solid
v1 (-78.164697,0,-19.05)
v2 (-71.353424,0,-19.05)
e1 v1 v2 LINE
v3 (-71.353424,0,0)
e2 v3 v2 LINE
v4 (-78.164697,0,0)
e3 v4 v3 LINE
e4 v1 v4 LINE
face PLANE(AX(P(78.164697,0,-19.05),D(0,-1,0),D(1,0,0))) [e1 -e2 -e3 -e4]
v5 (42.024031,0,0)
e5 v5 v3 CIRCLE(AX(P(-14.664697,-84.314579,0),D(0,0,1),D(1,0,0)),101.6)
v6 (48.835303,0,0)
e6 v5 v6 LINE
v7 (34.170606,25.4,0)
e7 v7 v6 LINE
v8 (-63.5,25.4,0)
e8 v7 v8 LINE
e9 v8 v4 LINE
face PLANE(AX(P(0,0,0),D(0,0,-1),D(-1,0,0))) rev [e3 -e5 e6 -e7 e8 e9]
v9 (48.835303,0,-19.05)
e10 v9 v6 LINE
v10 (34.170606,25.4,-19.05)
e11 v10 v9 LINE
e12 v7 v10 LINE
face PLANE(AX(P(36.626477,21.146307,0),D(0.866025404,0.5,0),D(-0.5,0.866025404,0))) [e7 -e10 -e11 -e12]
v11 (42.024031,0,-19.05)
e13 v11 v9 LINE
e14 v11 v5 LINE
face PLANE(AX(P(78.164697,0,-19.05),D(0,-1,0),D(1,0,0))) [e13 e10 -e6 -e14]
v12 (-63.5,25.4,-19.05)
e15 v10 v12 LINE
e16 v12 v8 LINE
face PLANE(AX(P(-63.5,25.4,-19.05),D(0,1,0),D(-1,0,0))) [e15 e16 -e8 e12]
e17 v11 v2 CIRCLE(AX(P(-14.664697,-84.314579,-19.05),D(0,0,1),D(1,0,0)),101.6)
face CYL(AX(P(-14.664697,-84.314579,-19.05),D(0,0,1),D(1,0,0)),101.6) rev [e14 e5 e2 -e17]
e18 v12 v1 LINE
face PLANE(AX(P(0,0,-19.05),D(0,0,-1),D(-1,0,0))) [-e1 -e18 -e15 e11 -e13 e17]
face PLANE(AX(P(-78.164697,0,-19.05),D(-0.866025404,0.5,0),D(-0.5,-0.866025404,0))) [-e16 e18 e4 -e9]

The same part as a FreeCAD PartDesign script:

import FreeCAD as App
import Part
import Sketcher
Q = App.Units.Quantity


def add_polygon(sketch, points):
    """Adds a closed chain of lines whose ends are joined by coincident constraints."""
    first, n = sketch.GeometryCount, len(points)
    for a, b in zip(points, points[1:] + points[:1]):
        sketch.addGeometry(Part.LineSegment(App.Vector(*a, 0), App.Vector(*b, 0)), False)
    for i in range(n):
        sketch.addConstraint(Sketcher.Constraint("Coincident", first + i, 2, first + (i + 1) % n, 1))

doc = App.newDocument("Part")
body = doc.addObject("PartDesign::Body", "Body")

# Sketch on XY plane
sketch1 = body.newObject("Sketcher::SketchObject", "Sketch")
sketch1.AttachmentSupport = (doc.getObject("XY_Plane"), [""])
sketch1.MapMode = "FlatFace"
add_polygon(sketch1, [(-64, 25), (-78, 0), (78, 0), (64, 25)])  # lines 0-3
sketch1.addConstraint([
    Sketcher.Constraint("Horizontal", 1),
    Sketcher.Constraint("Horizontal", 3),
    Sketcher.Constraint("Symmetric", 0, 2, 1, 2, -1, 1),
    Sketcher.Constraint("Equal", 0, 2),
    Sketcher.Constraint("DistanceX", 3, 2, 3, 1, Q("5 in")),
    Sketcher.Constraint("DistanceY", -1, 1, 2, 2, Q("1 in")),
    Sketcher.Constraint("Angle", 0, Q("-120 deg")),
])
pad1 = body.newObject("PartDesign::Pad", "Pad")
pad1.Profile = sketch1
pad1.Length = Q("0.75 in")
pad1.Reversed = True

# Sketch on an angled plane
sketch2 = body.newObject("Sketcher::SketchObject", "Sketch001")
sketch2.Placement = App.Placement(App.Vector(58.623523, 33.846307, 0), App.Rotation(App.Vector(0, 0, -1), App.Vector(-0.5, 0.866025404, 0), App.Vector(0.866025404, 0.5, 0), "ZXY"))
add_polygon(sketch2, [(-39, 50), (-39, -95), (80, -95), (80, 50)])  # lines 0-3
sketch2.addConstraint([
    Sketcher.Constraint("Vertical", 0),
    Sketcher.Constraint("Horizontal", 1),
    Sketcher.Constraint("Vertical", 2),
    Sketcher.Constraint("Horizontal", 3),
    Sketcher.Constraint("DistanceX", 1, 1, 1, 2, 119.775274),
    Sketcher.Constraint("DistanceY", 0, 2, 0, 1, 145.609157),
    Sketcher.Constraint("DistanceX", 0, 2, -1, 1, 39.395129),
    Sketcher.Constraint("DistanceY", 0, 2, -1, 1, 95.157512),
])
pocket1 = body.newObject("PartDesign::Pocket", "Pocket")
pocket1.Profile = sketch2
pocket1.Length = Q("1 in")

# Sketch on XY plane
sketch3 = body.newObject("Sketcher::SketchObject", "Sketch002")
sketch3.AttachmentSupport = (doc.getObject("XY_Plane"), [""])
sketch3.MapMode = "FlatFace"
sketch3.addGeometry(Part.Circle(App.Vector(-15, -84, 0), App.Vector(0, 0, 1), 102), False)
sketch3.addConstraint([
    Sketcher.Constraint("Diameter", 0, Q("8 in")),
    Sketcher.Constraint("DistanceY", 0, 3, -1, 1, 84.314579),
    Sketcher.Constraint("DistanceX", 0, 3, -1, 1, 14.664697),
])
pocket2 = body.newObject("PartDesign::Pocket", "Pocket001")
pocket2.Profile = sketch3
pocket2.Type = "ThroughAll"

doc.recompute()
